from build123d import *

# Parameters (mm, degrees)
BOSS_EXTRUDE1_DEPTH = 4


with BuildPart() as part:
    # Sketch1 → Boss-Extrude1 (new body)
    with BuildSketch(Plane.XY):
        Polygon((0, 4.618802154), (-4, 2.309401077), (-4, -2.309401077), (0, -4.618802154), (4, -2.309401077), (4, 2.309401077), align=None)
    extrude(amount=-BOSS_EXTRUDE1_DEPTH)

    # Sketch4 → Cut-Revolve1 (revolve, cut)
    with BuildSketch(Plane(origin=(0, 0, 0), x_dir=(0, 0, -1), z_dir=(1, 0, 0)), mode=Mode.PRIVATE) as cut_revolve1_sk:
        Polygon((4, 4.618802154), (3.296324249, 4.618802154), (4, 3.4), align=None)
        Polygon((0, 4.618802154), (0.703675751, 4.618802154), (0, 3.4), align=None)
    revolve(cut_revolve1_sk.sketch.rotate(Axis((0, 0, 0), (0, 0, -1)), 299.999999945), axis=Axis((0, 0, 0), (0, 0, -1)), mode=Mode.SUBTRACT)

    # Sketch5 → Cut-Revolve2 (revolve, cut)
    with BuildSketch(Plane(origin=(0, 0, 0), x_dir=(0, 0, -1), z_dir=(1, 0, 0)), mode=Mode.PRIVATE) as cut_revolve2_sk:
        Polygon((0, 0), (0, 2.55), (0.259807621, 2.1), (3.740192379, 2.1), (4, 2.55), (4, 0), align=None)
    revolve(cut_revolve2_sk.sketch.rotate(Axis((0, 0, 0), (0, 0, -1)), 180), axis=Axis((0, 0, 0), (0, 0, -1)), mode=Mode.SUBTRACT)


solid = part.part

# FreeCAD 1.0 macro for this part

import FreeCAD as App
import Part
import Sketcher
from FreeCAD import Vector
Q = App.Units.Quantity

doc = App.newDocument("Part")
body = doc.addObject("PartDesign::Body", "Body")

# Sketch on XY plane
sketch1 = doc.addObject("Sketcher::SketchObject", "Sketch")
body.addObject(sketch1)
sketch1.AttachmentSupport = (doc.XY_Plane, [""])
sketch1.MapMode = "FlatFace"
sketch1.addGeometry([
    Part.LineSegment(Vector(0, 4.6, 0), Vector(-4, 2.3, 0)),  # 0
    Part.LineSegment(Vector(-4, 2.3, 0), Vector(-4, -2.3, 0)),  # 1
    Part.LineSegment(Vector(-4, -2.3, 0), Vector(0, -4.6, 0)),  # 2
    Part.LineSegment(Vector(0, -4.6, 0), Vector(4, -2.3, 0)),  # 3
    Part.LineSegment(Vector(4, -2.3, 0), Vector(4, 2.3, 0)),  # 4
    Part.LineSegment(Vector(4, 2.3, 0), Vector(0, 4.6, 0)),  # 5
], False)
sketch1.addConstraint([
    Sketcher.Constraint("Coincident", 0, 2, 1, 1),
    Sketcher.Constraint("Coincident", 1, 2, 2, 1),
    Sketcher.Constraint("Coincident", 2, 2, 3, 1),
    Sketcher.Constraint("Coincident", 3, 2, 4, 1),
    Sketcher.Constraint("Coincident", 4, 2, 5, 1),
    Sketcher.Constraint("Coincident", 5, 2, 0, 1),
    Sketcher.Constraint("Vertical", 1),
    Sketcher.Constraint("Vertical", 4),
    Sketcher.Constraint("Symmetric", 0, 2, 3, 2, -1, 1),
    Sketcher.Constraint("Symmetric", 2, 2, 5, 2, -1, 1),
    Sketcher.Constraint("PointOnObject", 2, 2, -2),
    Sketcher.Constraint("Parallel", 2, 5),
    Sketcher.Constraint("Horizontal", 1, 2, 3, 2),
    Sketcher.Constraint("Angle", 0, Q("-150 deg")),
    Sketcher.Constraint("DistanceX", 0, 2, -1, 1, 4.0),
    Sketcher.Constraint("DistanceY", -1, 1, 0, 2, 2.309401),
])
pad1 = doc.addObject("PartDesign::Pad", "Pad")
body.addObject(pad1)
pad1.Profile = sketch1
pad1.Length = 4
pad1.Reversed = True

# Sketch on YZ plane
sketch2 = doc.addObject("Sketcher::SketchObject", "Sketch001")
body.addObject(sketch2)
sketch2.AttachmentSupport = (doc.YZ_Plane, [""])
sketch2.MapMode = "FlatFace"
sketch2.addGeometry([
    Part.LineSegment(Vector(4.6, -4, 0), Vector(4.6, -3.3, 0)),  # 0
    Part.LineSegment(Vector(4.6, -3.3, 0), Vector(3.4, -4, 0)),  # 1
    Part.LineSegment(Vector(3.4, -4, 0), Vector(4.6, -4, 0)),  # 2
    Part.LineSegment(Vector(4.6, -0.7, 0), Vector(4.6, 0, 0)),  # 3
    Part.LineSegment(Vector(4.6, 0, 0), Vector(3.4, 0, 0)),  # 4
    Part.LineSegment(Vector(3.4, 0, 0), Vector(4.6, -0.7, 0)),  # 5
], False)
sketch2.addConstraint([
    Sketcher.Constraint("Coincident", 0, 2, 1, 1),
    Sketcher.Constraint("Coincident", 1, 2, 2, 1),
    Sketcher.Constraint("Coincident", 2, 2, 0, 1),
    Sketcher.Constraint("Coincident", 3, 2, 4, 1),
    Sketcher.Constraint("Coincident", 4, 2, 5, 1),
    Sketcher.Constraint("Coincident", 5, 2, 3, 1),
    Sketcher.Constraint("Vertical", 0),
    Sketcher.Constraint("Horizontal", 2),
    Sketcher.Constraint("Vertical", 3),
    Sketcher.Constraint("Horizontal", 4),
    Sketcher.Constraint("PointOnObject", 3, 2, -1),
    Sketcher.Constraint("Vertical", 2, 2, 3, 2),
    Sketcher.Constraint("Vertical", 1, 2, 4, 2),
    Sketcher.Constraint("Equal", 0, 3),
    Sketcher.Constraint("Angle", 1, Q("-150 deg")),
    Sketcher.Constraint("DistanceY", 1, 2, -1, 1, 4.0),
    Sketcher.Constraint("DistanceX", -1, 1, 1, 2, 3.4),
    Sketcher.Constraint("Distance", 1, 1.407352),
])
groove = doc.addObject("PartDesign::Groove", "Groove")
body.addObject(groove)
groove.Profile = sketch2
groove.ReferenceAxis = (sketch2, ["V_Axis"])
groove.Angle = 360

# Sketch on YZ plane
sketch3 = doc.addObject("Sketcher::SketchObject", "Sketch002")
body.addObject(sketch3)
sketch3.AttachmentSupport = (doc.YZ_Plane, [""])
sketch3.MapMode = "FlatFace"
sketch3.addGeometry([
    Part.LineSegment(Vector(2.5, 0, 0), Vector(0, 0, 0)),  # 0
    Part.LineSegment(Vector(0, 0, 0), Vector(0, -4, 0)),  # 1
    Part.LineSegment(Vector(0, -4, 0), Vector(2.5, -4, 0)),  # 2
    Part.LineSegment(Vector(2.5, -4, 0), Vector(2.1, -3.7, 0)),  # 3
    Part.LineSegment(Vector(2.1, -3.7, 0), Vector(2.1, -0.3, 0)),  # 4
    Part.LineSegment(Vector(2.1, -0.3, 0), Vector(2.5, 0, 0)),  # 5
], False)
sketch3.addConstraint([
    Sketcher.Constraint("Coincident", 0, 2, 1, 1),
    Sketcher.Constraint("Coincident", 1, 2, 2, 1),
    Sketcher.Constraint("Coincident", 2, 2, 3, 1),
    Sketcher.Constraint("Coincident", 3, 2, 4, 1),
    Sketcher.Constraint("Coincident", 4, 2, 5, 1),
    Sketcher.Constraint("Coincident", 5, 2, 0, 1),
    Sketcher.Constraint("Horizontal", 0),
    Sketcher.Constraint("Vertical", 1),
    Sketcher.Constraint("Horizontal", 2),
    Sketcher.Constraint("Vertical", 4),
    Sketcher.Constraint("Coincident", 0, 2, -1, 1),
    Sketcher.Constraint("Vertical", 2, 2, 5, 2),
    Sketcher.Constraint("Equal", 3, 5),
    Sketcher.Constraint("DistanceY", 1, 2, 1, 1, 4.0),
    Sketcher.Constraint("Angle", 3, Q("150 deg")),
    Sketcher.Constraint("DistanceX", 0, 2, 0, 1, 2.55),
    Sketcher.Constraint("DistanceX", -1, 1, 3, 2, 2.1),
])
groove2 = doc.addObject("PartDesign::Groove", "Groove001")
body.addObject(groove2)
groove2.Profile = sketch3
groove2.ReferenceAxis = (sketch3, ["V_Axis"])
groove2.Angle = 360

doc.recompute()
